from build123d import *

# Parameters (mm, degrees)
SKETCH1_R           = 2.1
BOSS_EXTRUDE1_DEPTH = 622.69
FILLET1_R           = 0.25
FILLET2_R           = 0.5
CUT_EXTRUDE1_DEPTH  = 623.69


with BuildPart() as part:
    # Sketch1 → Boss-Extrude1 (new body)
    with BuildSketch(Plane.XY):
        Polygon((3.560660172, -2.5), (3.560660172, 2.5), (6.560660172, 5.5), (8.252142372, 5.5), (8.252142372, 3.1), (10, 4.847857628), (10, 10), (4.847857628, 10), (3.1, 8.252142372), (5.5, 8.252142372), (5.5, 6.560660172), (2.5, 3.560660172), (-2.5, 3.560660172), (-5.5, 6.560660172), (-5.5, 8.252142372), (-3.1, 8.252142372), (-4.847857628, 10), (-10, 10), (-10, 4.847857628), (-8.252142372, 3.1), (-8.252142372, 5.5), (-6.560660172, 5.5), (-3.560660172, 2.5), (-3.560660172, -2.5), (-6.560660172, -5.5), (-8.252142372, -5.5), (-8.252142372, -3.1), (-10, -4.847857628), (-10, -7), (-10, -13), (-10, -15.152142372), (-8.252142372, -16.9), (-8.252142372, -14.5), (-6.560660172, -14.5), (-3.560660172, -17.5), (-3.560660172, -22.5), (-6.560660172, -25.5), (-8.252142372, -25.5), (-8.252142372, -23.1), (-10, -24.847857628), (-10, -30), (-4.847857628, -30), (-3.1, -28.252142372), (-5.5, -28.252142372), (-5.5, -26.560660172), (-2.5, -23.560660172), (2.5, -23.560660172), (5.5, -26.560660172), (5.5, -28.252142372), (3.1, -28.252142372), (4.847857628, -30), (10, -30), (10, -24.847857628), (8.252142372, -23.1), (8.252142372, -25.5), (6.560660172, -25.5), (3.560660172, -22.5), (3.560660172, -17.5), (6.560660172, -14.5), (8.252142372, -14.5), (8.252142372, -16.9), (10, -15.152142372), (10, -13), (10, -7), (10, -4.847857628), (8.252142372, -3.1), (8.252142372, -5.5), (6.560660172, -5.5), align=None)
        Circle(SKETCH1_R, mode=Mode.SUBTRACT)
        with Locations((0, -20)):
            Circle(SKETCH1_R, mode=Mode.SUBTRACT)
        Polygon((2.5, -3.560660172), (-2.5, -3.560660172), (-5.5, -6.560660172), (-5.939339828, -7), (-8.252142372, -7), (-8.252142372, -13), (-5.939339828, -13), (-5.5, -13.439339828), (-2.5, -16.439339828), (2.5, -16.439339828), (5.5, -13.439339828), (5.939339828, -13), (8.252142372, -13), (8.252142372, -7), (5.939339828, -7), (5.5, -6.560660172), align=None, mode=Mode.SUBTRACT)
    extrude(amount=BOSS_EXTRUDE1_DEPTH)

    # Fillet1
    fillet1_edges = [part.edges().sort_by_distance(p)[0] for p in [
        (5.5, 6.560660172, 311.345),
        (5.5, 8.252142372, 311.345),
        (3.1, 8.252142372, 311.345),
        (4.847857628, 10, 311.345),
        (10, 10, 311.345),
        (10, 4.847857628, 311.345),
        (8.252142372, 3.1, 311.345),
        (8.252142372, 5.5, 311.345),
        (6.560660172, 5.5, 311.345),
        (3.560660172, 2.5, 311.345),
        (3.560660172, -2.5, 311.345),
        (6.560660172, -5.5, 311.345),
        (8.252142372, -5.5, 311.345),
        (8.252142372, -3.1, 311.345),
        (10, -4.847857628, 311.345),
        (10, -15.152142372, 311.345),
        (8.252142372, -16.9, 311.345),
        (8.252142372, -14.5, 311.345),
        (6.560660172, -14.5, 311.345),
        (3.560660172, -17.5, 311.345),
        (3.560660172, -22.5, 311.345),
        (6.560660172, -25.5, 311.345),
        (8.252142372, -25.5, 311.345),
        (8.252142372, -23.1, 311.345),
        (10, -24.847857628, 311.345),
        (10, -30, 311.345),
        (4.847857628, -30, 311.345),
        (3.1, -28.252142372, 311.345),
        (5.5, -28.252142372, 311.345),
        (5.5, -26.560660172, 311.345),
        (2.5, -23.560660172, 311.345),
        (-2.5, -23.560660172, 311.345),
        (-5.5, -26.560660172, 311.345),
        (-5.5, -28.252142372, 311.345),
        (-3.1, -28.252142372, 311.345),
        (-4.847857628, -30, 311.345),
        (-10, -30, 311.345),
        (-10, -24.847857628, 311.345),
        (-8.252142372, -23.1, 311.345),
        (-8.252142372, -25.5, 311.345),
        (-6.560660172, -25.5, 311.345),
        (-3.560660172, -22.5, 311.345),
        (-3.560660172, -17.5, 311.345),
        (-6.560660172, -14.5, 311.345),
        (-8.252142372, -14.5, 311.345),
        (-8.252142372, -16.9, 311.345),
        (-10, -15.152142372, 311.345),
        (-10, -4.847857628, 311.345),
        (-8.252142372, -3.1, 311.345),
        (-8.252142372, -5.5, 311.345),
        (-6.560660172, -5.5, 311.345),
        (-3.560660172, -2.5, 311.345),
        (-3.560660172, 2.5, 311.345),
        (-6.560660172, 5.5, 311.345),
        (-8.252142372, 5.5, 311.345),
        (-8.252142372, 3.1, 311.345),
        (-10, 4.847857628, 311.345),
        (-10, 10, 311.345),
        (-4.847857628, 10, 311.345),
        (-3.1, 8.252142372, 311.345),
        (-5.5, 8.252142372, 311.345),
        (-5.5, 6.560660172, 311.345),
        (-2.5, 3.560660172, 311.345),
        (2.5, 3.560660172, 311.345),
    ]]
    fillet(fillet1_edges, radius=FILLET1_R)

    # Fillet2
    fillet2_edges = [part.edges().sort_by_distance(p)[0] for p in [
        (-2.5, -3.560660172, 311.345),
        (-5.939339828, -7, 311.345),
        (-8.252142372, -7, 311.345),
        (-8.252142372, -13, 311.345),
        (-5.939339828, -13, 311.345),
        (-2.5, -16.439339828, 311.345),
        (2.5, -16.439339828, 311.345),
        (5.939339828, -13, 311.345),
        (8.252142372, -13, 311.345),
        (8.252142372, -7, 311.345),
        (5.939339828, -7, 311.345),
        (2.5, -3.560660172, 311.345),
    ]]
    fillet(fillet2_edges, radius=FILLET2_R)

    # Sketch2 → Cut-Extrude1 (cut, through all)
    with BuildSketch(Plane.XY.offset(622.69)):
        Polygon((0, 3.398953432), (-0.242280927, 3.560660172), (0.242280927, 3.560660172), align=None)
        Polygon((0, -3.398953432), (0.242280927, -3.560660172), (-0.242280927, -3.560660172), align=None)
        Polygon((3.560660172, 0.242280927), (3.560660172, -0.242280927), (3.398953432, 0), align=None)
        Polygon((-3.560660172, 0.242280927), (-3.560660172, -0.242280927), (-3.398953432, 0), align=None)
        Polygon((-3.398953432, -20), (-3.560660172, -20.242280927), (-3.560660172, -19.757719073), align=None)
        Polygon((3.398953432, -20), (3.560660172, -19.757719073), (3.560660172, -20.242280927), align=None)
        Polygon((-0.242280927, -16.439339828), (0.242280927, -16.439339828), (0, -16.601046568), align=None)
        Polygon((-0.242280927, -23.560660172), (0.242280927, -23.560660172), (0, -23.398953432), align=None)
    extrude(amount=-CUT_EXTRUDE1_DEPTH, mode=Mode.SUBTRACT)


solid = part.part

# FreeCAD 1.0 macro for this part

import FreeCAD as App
import Part
import Sketcher
from FreeCAD import Vector
Q = App.Units.Quantity


def edges_at(feature, points):
    """Names of the edges that pass closest to the given points."""
    edges = feature.Shape.Edges
    near = lambda p: min(range(len(edges)), key=lambda i: edges[i].distToShape(Part.Vertex(*p))[0])
    return sorted({f"Edge{near(p) + 1}" for p in points})


def add_polygon(sketch, points):
    """Adds a closed chain of lines whose ends are joined by coincident constraints."""
    first, n = sketch.GeometryCount, len(points)
    for a, b in zip(points, points[1:] + points[:1]):
        sketch.addGeometry(Part.LineSegment(App.Vector(*a, 0), App.Vector(*b, 0)), False)
    for i in range(n):
        sketch.addConstraint(Sketcher.Constraint("Coincident", first + i, 2, first + (i + 1) % n, 1))

doc = App.newDocument("Part")
body = doc.addObject("PartDesign::Body", "Body")

# Sketch on XY plane
sketch1 = body.newObject("Sketcher::SketchObject", "Sketch")
sketch1.AttachmentSupport = (doc.getObject("XY_Plane"), [""])
sketch1.MapMode = "FlatFace"
add_polygon(sketch1, [(3.6, -2.5), (3.6, 2.5), (6.6, 5.5), (8.3, 5.5), (8.3, 3.1), (10, 4.8), (10, 10), (4.8, 10), (3.1, 8.3), (5.5, 8.3), (5.5, 6.6), (2.5, 3.6), (-2.5, 3.6), (-5.5, 6.6), (-5.5, 8.3), (-3.1, 8.3), (-4.8, 10), (-10, 10), (-10, 4.8), (-8.3, 3.1), (-8.3, 5.5), (-6.6, 5.5), (-3.6, 2.5), (-3.6, -2.5), (-6.6, -5.5), (-8.3, -5.5), (-8.3, -3.1), (-10, -4.8), (-10, -15.2), (-8.3, -16.9), (-8.3, -14.5), (-6.6, -14.5), (-3.6, -17.5), (-3.6, -22.5), (-6.6, -25.5), (-8.3, -25.5), (-8.3, -23.1), (-10, -24.8), (-10, -30), (-4.8, -30), (-3.1, -28.3), (-5.5, -28.3), (-5.5, -26.6), (-2.5, -23.6), (2.5, -23.6), (5.5, -26.6), (5.5, -28.3), (3.1, -28.3), (4.8, -30), (10, -30), (10, -24.8), (8.3, -23.1), (8.3, -25.5), (6.6, -25.5), (3.6, -22.5), (3.6, -17.5), (6.6, -14.5), (8.3, -14.5), (8.3, -16.9), (10, -15.2), (10, -4.8), (8.3, -3.1), (8.3, -5.5), (6.6, -5.5)])  # lines 0-63
sketch1.addGeometry(Part.Circle(Vector(0, -20, 0), Vector(0, 0, 1), 2.1), False)  # 64
add_polygon(sketch1, [(-2.5, -3.6), (2.5, -3.6), (5.9, -7), (8.3, -7), (8.3, -13), (5.9, -13), (2.5, -16.4), (-2.5, -16.4), (-5.9, -13), (-8.3, -13), (-8.3, -7), (-5.9, -7)])  # lines 65-76
sketch1.addGeometry(Part.Circle(Vector(0, 0, 0), Vector(0, 0, 1), 2.1), False)  # 77
sketch1.addConstraint([
    Sketcher.Constraint("Vertical", 0),
    Sketcher.Constraint("Horizontal", 2),
    Sketcher.Constraint("Vertical", 3),
    Sketcher.Constraint("Vertical", 5),
    Sketcher.Constraint("Horizontal", 6),
    Sketcher.Constraint("Horizontal", 8),
    Sketcher.Constraint("Vertical", 9),
    Sketcher.Constraint("Horizontal", 11),
    Sketcher.Constraint("Vertical", 13),
    Sketcher.Constraint("Horizontal", 14),
    Sketcher.Constraint("Horizontal", 16),
    Sketcher.Constraint("Vertical", 17),
    Sketcher.Constraint("Vertical", 19),
    Sketcher.Constraint("Horizontal", 20),
    Sketcher.Constraint("Vertical", 22),
    Sketcher.Constraint("Horizontal", 24),
    Sketcher.Constraint("Vertical", 25),
    Sketcher.Constraint("Vertical", 27),
    Sketcher.Constraint("Vertical", 29),
    Sketcher.Constraint("Horizontal", 30),
    Sketcher.Constraint("Vertical", 32),
    Sketcher.Constraint("Horizontal", 34),
    Sketcher.Constraint("Vertical", 35),
    Sketcher.Constraint("Vertical", 37),
    Sketcher.Constraint("Horizontal", 38),
    Sketcher.Constraint("Horizontal", 40),
    Sketcher.Constraint("Vertical", 41),
    Sketcher.Constraint("Horizontal", 43),
    Sketcher.Constraint("Vertical", 45),
    Sketcher.Constraint("Horizontal", 46),
    Sketcher.Constraint("Horizontal", 48),
    Sketcher.Constraint("Vertical", 49),
    Sketcher.Constraint("Vertical", 51),
    Sketcher.Constraint("Horizontal", 52),
    Sketcher.Constraint("Vertical", 54),
    Sketcher.Constraint("Horizontal", 56),
    Sketcher.Constraint("Vertical", 57),
    Sketcher.Constraint("Vertical", 59),
    Sketcher.Constraint("Vertical", 61),
    Sketcher.Constraint("Horizontal", 62),
    Sketcher.Constraint("Horizontal", 65),
    Sketcher.Constraint("Horizontal", 67),
    Sketcher.Constraint("Vertical", 68),
    Sketcher.Constraint("Horizontal", 69),
    Sketcher.Constraint("Horizontal", 71),
    Sketcher.Constraint("Horizontal", 73),
    Sketcher.Constraint("Vertical", 74),
    Sketcher.Constraint("Horizontal", 75),
    Sketcher.Constraint("Coincident", 77, 3, -1, 1),
    Sketcher.Constraint("Equal", 64, 77),
    Sketcher.Constraint("Symmetric", 0, 2, 22, 2, -1, 1),
    Sketcher.Constraint("Symmetric", 1, 2, 23, 2, -1, 1),
    Sketcher.Constraint("Symmetric", 3, 2, 25, 2, -1, 1),
    Sketcher.Constraint("Symmetric", 4, 2, 26, 2, -1, 1),
    Sketcher.Constraint("Symmetric", 17, 2, 59, 2, -1, 1),
    Sketcher.Constraint("Symmetric", 18, 2, 60, 2, -1, 1),
    Sketcher.Constraint("Symmetric", 20, 2, 62, 2, -1, 1),
    Sketcher.Constraint("Symmetric", 11, 2, 65, 2, -1, 1),
    Sketcher.Constraint("Symmetric", 9, 2, 12, 2, -2),
    Sketcher.Constraint("Symmetric", 7, 2, 14, 2, -2),
    Sketcher.Constraint("Symmetric", 6, 2, 15, 2, -2),
    Sketcher.Constraint("Symmetric", 4, 2, 17, 2, -2),
    Sketcher.Constraint("Symmetric", 3, 2, 18, 2, -2),
    Sketcher.Constraint("Symmetric", 1, 2, 20, 2, -2),
    Sketcher.Constraint("Symmetric", 41, 2, 44, 2, -2),
    Sketcher.Constraint("Symmetric", 39, 2, 46, 2, -2),
    Sketcher.Constraint("Symmetric", 38, 2, 47, 2, -2),
    Sketcher.Constraint("Symmetric", 36, 2, 49, 2, -2),
    Sketcher.Constraint("Symmetric", 35, 2, 50, 2, -2),
    Sketcher.Constraint("Symmetric", 33, 2, 52, 2, -2),
    Sketcher.Constraint("Symmetric", 32, 2, 53, 2, -2),
    Sketcher.Constraint("Symmetric", 30, 2, 55, 2, -2),
    Sketcher.Constraint("Symmetric", 28, 2, 57, 2, -2),
    Sketcher.Constraint("Symmetric", 69, 2, 72, 2, -2),
    Sketcher.Constraint("Symmetric", 67, 2, 74, 2, -2),
    Sketcher.Constraint("PointOnObject", 64, 3, -2),
    Sketcher.Constraint("Parallel", 1, 4),
    Sketcher.Constraint("Parallel", 4, 7),
    Sketcher.Constraint("Parallel", 7, 10),
    Sketcher.Constraint("Perpendicular", 10, 12),
    Sketcher.Constraint("Parallel", 12, 15),
    Sketcher.Constraint("Parallel", 18, 21),
    Sketcher.Constraint("Perpendicular", 26, 28),
    Sketcher.Constraint("Parallel", 28, 31),
    Sketcher.Constraint("Perpendicular", 31, 33),
    Sketcher.Constraint("Parallel", 33, 36),
    Sketcher.Constraint("Parallel", 36, 39),
    Sketcher.Constraint("Parallel", 39, 42),
    Sketcher.Constraint("Perpendicular", 42, 44),
    Sketcher.Constraint("Perpendicular", 53, 55),
    Sketcher.Constraint("Parallel", 55, 58),
    Sketcher.Constraint("Parallel", 60, 63),
    Sketcher.Constraint("Parallel", 63, 66),
    Sketcher.Constraint("Perpendicular", 66, 70),
    Sketcher.Constraint("Perpendicular", 70, 72),
    Sketcher.Constraint("Perpendicular", 72, 76),
    Sketcher.Constraint("Vertical", 25, 2, 28, 2),
    Sketcher.Constraint("Vertical", 23, 2, 30, 2),
    Sketcher.Constraint("Vertical", 22, 2, 31, 2),
    Sketcher.Constraint("Vertical", 30, 2, 33, 2),
    Sketcher.Constraint("Vertical", 29, 2, 34, 2),
    Sketcher.Constraint("Vertical", 27, 2, 36, 2),
    Sketcher.Constraint("Vertical", 15, 2, 38, 2),
    Sketcher.Constraint("Vertical", 14, 2, 39, 2),
    Sketcher.Constraint("Vertical", 13, 2, 40, 2),
    Sketcher.Constraint("Vertical", 11, 2, 42, 2),
    Sketcher.Constraint("Vertical", 61, 2, 67, 2),
    Sketcher.Constraint("Vertical", 66, 2, 69, 2),
    Sketcher.Constraint("Vertical", 65, 2, 70, 2),
    Sketcher.Constraint("Vertical", 72, 2, 75, 2),
    Sketcher.Constraint("Equal", 71, 0),
    Sketcher.Constraint("Equal", 46, 3),
    Sketcher.Constraint("Equal", 48, 5),
    Sketcher.Constraint("Equal", 62, 9),
    Sketcher.Constraint("Equal", 25, 29),
    Sketcher.Constraint("Equal", 22, 32),
    Sketcher.Constraint("Equal", 29, 35),
    Sketcher.Constraint("Equal", 17, 37),
    Sketcher.Constraint("Equal", 13, 41),
    Sketcher.Constraint("Equal", 4, 7),
    Sketcher.Constraint("Equal", 1, 10),
    Sketcher.Constraint("Diameter", 64, Q("4.2 mm")),
    Sketcher.Constraint("DistanceX", 11, 2, 11, 1, Q("5 mm")),
    Sketcher.Constraint("DistanceY", 68, 2, 68, 1, Q("6 mm")),
    Sketcher.Constraint("DistanceX", 8, 1, 8, 2, Q("2.4 mm")),
    Sketcher.Constraint("DistanceY", 64, 3, -1, 1, Q("20 mm")),
    Sketcher.Constraint("DistanceX", -1, 1, 4, 2, Q("10 mm")),
    Sketcher.Constraint("DistanceY", 37, 2, -1, 1, Q("30 mm")),
    Sketcher.Constraint("DistanceY", 66, 2, -1, 1, Q("7 mm")),
    Sketcher.Constraint("DistanceY", -1, 1, 1, 2, Q("5.5 mm")),
    Sketcher.Constraint("Distance", 66, Q("4.863961 mm")),
    Sketcher.Constraint("DistanceX", 2, 1, 2, 2, Q("1.691482 mm")),
])
pad1 = body.newObject("PartDesign::Pad", "Pad")
pad1.Profile = sketch1
pad1.Length = 622.69
doc.recompute()

fillet = body.newObject("PartDesign::Fillet", "Fillet")
fillet.Base = (pad1, edges_at(pad1, [
    (5.5, 6.561, 311.345),
    (5.5, 8.252, 311.345),
    (3.1, 8.252, 311.345),
    (4.848, 10, 311.345),
    (10, 10, 311.345),
    (10, 4.848, 311.345),
    (8.252, 3.1, 311.345),
    (8.252, 5.5, 311.345),
    (6.561, 5.5, 311.345),
    (3.561, 2.5, 311.345),
    (3.561, -2.5, 311.345),
    (6.561, -5.5, 311.345),
    (8.252, -5.5, 311.345),
    (8.252, -3.1, 311.345),
    (10, -4.848, 311.345),
    (10, -15.152, 311.345),
    (8.252, -16.9, 311.345),
    (8.252, -14.5, 311.345),
    (6.561, -14.5, 311.345),
    (3.561, -17.5, 311.345),
    (3.561, -22.5, 311.345),
    (6.561, -25.5, 311.345),
    (8.252, -25.5, 311.345),
    (8.252, -23.1, 311.345),
    (10, -24.848, 311.345),
    (10, -30, 311.345),
    (4.848, -30, 311.345),
    (3.1, -28.252, 311.345),
    (5.5, -28.252, 311.345),
    (5.5, -26.561, 311.345),
    (2.5, -23.561, 311.345),
    (-2.5, -23.561, 311.345),
    (-5.5, -26.561, 311.345),
    (-5.5, -28.252, 311.345),
    (-3.1, -28.252, 311.345),
    (-4.848, -30, 311.345),
    (-10, -30, 311.345),
    (-10, -24.848, 311.345),
    (-8.252, -23.1, 311.345),
    (-8.252, -25.5, 311.345),
    (-6.561, -25.5, 311.345),
    (-3.561, -22.5, 311.345),
    (-3.561, -17.5, 311.345),
    (-6.561, -14.5, 311.345),
    (-8.252, -14.5, 311.345),
    (-8.252, -16.9, 311.345),
    (-10, -15.152, 311.345),
    (-10, -4.848, 311.345),
    (-8.252, -3.1, 311.345),
    (-8.252, -5.5, 311.345),
    (-6.561, -5.5, 311.345),
    (-3.561, -2.5, 311.345),
    (-3.561, 2.5, 311.345),
    (-6.561, 5.5, 311.345),
    (-8.252, 5.5, 311.345),
    (-8.252, 3.1, 311.345),
    (-10, 4.848, 311.345),
    (-10, 10, 311.345),
    (-4.848, 10, 311.345),
    (-3.1, 8.252, 311.345),
    (-5.5, 8.252, 311.345),
    (-5.5, 6.561, 311.345),
    (-2.5, 3.561, 311.345),
    (2.5, 3.561, 311.345),
]))
fillet.Radius = 0.25
doc.recompute()

fillet2 = body.newObject("PartDesign::Fillet", "Fillet001")
fillet2.Base = (fillet, edges_at(fillet, [
    (-2.5, -3.561, 311.345),
    (-5.939, -7, 311.345),
    (-8.252, -7, 311.345),
    (-8.252, -13, 311.345),
    (-5.939, -13, 311.345),
    (-2.5, -16.439, 311.345),
    (2.5, -16.439, 311.345),
    (5.939, -13, 311.345),
    (8.252, -13, 311.345),
    (8.252, -7, 311.345),
    (5.939, -7, 311.345),
    (2.5, -3.561, 311.345),
]))
fillet2.Radius = 0.5

# Sketch on XY plane
sketch2 = body.newObject("Sketcher::SketchObject", "Sketch001")
sketch2.AttachmentSupport = (doc.getObject("XY_Plane"), [""])
sketch2.MapMode = "FlatFace"
sketch2.AttachmentOffset = App.Placement(Vector(0, 0, 622.69), App.Rotation())
add_polygon(sketch2, [(-0.24, 3.56), (0, 3.4), (0.24, 3.56)])  # lines 0-2
add_polygon(sketch2, [(0.24, -3.56), (0, -3.4), (-0.24, -3.56)])  # lines 3-5
add_polygon(sketch2, [(3.56, -0.24), (3.56, 0.24), (3.4, 0)])  # lines 6-8
add_polygon(sketch2, [(-3.56, 0.24), (-3.56, -0.24), (-3.4, 0)])  # lines 9-11
add_polygon(sketch2, [(-3.56, -20.24), (-3.4, -20), (-3.56, -19.76)])  # lines 12-14
add_polygon(sketch2, [(3.56, -19.76), (3.4, -20), (3.56, -20.24)])  # lines 15-17
add_polygon(sketch2, [(0.24, -16.44), (-0.24, -16.44), (0, -16.6)])  # lines 18-20
add_polygon(sketch2, [(-0.24, -23.56), (0.24, -23.56), (0, -23.4)])  # lines 21-23
sketch2.addConstraint([
    Sketcher.Constraint("Horizontal", 2),
    Sketcher.Constraint("Horizontal", 5),
    Sketcher.Constraint("Vertical", 6),
    Sketcher.Constraint("Vertical", 9),
    Sketcher.Constraint("Vertical", 14),
    Sketcher.Constraint("Vertical", 17),
    Sketcher.Constraint("Horizontal", 18),
    Sketcher.Constraint("Horizontal", 21),
    Sketcher.Constraint("Symmetric", 0, 2, 3, 2, -1, 1),
    Sketcher.Constraint("Symmetric", 1, 2, 4, 2, -1, 1),
    Sketcher.Constraint("Symmetric", 6, 2, 9, 2, -1, 1),
    Sketcher.Constraint("Symmetric", 7, 2, 10, 2, -1, 1),
    Sketcher.Constraint("Symmetric", 12, 2, 15, 2, -2),
    Sketcher.Constraint("Symmetric", 14, 2, 16, 2, -2),
    Sketcher.Constraint("PointOnObject", 0, 2, -2),
    Sketcher.Constraint("PointOnObject", 7, 2, -1),
    Sketcher.Constraint("PointOnObject", 19, 2, -2),
    Sketcher.Constraint("PointOnObject", 22, 2, -2),
    Sketcher.Constraint("Parallel", 0, 3),
    Sketcher.Constraint("Perpendicular", 3, 7),
    Sketcher.Constraint("Perpendicular", 4, 8),
    Sketcher.Constraint("Parallel", 8, 11),
    Sketcher.Constraint("Parallel", 10, 12),
    Sketcher.Constraint("Parallel", 11, 13),
    Sketcher.Constraint("Parallel", 12, 15),
    Sketcher.Constraint("Parallel", 13, 16),
    Sketcher.Constraint("Perpendicular", 15, 19),
    Sketcher.Constraint("Perpendicular", 16, 20),
    Sketcher.Constraint("Parallel", 19, 22),
    Sketcher.Constraint("Parallel", 20, 23),
    Sketcher.Constraint("Vertical", 10, 2, 12, 2),
    Sketcher.Constraint("Vertical", 11, 2, 13, 2),
    Sketcher.Constraint("Vertical", 4, 2, 18, 2),
    Sketcher.Constraint("Vertical", 20, 2, 21, 2),
    Sketcher.Constraint("Equal", 21, 6),
    Sketcher.Constraint("DistanceY", 12, 2, -1, 1, Q("20 mm")),
    Sketcher.Constraint("DistanceX", 2, 2, 2, 1, Q("0.484562 mm")),
    Sketcher.Constraint("Distance", 0, Q("0.291289 mm")),
    Sketcher.Constraint("DistanceY", -1, 1, 1, 2, Q("3.56066 mm")),
    Sketcher.Constraint("DistanceX", -1, 1, 6, 2, Q("3.56066 mm")),
    Sketcher.Constraint("DistanceY", 18, 2, -1, 1, Q("16.43934 mm")),
    Sketcher.Constraint("DistanceY", 21, 2, -1, 1, Q("23.56066 mm")),
])
pocket1 = body.newObject("PartDesign::Pocket", "Pocket")
pocket1.Profile = sketch2
pocket1.Type = "ThroughAll"

doc.recompute()
